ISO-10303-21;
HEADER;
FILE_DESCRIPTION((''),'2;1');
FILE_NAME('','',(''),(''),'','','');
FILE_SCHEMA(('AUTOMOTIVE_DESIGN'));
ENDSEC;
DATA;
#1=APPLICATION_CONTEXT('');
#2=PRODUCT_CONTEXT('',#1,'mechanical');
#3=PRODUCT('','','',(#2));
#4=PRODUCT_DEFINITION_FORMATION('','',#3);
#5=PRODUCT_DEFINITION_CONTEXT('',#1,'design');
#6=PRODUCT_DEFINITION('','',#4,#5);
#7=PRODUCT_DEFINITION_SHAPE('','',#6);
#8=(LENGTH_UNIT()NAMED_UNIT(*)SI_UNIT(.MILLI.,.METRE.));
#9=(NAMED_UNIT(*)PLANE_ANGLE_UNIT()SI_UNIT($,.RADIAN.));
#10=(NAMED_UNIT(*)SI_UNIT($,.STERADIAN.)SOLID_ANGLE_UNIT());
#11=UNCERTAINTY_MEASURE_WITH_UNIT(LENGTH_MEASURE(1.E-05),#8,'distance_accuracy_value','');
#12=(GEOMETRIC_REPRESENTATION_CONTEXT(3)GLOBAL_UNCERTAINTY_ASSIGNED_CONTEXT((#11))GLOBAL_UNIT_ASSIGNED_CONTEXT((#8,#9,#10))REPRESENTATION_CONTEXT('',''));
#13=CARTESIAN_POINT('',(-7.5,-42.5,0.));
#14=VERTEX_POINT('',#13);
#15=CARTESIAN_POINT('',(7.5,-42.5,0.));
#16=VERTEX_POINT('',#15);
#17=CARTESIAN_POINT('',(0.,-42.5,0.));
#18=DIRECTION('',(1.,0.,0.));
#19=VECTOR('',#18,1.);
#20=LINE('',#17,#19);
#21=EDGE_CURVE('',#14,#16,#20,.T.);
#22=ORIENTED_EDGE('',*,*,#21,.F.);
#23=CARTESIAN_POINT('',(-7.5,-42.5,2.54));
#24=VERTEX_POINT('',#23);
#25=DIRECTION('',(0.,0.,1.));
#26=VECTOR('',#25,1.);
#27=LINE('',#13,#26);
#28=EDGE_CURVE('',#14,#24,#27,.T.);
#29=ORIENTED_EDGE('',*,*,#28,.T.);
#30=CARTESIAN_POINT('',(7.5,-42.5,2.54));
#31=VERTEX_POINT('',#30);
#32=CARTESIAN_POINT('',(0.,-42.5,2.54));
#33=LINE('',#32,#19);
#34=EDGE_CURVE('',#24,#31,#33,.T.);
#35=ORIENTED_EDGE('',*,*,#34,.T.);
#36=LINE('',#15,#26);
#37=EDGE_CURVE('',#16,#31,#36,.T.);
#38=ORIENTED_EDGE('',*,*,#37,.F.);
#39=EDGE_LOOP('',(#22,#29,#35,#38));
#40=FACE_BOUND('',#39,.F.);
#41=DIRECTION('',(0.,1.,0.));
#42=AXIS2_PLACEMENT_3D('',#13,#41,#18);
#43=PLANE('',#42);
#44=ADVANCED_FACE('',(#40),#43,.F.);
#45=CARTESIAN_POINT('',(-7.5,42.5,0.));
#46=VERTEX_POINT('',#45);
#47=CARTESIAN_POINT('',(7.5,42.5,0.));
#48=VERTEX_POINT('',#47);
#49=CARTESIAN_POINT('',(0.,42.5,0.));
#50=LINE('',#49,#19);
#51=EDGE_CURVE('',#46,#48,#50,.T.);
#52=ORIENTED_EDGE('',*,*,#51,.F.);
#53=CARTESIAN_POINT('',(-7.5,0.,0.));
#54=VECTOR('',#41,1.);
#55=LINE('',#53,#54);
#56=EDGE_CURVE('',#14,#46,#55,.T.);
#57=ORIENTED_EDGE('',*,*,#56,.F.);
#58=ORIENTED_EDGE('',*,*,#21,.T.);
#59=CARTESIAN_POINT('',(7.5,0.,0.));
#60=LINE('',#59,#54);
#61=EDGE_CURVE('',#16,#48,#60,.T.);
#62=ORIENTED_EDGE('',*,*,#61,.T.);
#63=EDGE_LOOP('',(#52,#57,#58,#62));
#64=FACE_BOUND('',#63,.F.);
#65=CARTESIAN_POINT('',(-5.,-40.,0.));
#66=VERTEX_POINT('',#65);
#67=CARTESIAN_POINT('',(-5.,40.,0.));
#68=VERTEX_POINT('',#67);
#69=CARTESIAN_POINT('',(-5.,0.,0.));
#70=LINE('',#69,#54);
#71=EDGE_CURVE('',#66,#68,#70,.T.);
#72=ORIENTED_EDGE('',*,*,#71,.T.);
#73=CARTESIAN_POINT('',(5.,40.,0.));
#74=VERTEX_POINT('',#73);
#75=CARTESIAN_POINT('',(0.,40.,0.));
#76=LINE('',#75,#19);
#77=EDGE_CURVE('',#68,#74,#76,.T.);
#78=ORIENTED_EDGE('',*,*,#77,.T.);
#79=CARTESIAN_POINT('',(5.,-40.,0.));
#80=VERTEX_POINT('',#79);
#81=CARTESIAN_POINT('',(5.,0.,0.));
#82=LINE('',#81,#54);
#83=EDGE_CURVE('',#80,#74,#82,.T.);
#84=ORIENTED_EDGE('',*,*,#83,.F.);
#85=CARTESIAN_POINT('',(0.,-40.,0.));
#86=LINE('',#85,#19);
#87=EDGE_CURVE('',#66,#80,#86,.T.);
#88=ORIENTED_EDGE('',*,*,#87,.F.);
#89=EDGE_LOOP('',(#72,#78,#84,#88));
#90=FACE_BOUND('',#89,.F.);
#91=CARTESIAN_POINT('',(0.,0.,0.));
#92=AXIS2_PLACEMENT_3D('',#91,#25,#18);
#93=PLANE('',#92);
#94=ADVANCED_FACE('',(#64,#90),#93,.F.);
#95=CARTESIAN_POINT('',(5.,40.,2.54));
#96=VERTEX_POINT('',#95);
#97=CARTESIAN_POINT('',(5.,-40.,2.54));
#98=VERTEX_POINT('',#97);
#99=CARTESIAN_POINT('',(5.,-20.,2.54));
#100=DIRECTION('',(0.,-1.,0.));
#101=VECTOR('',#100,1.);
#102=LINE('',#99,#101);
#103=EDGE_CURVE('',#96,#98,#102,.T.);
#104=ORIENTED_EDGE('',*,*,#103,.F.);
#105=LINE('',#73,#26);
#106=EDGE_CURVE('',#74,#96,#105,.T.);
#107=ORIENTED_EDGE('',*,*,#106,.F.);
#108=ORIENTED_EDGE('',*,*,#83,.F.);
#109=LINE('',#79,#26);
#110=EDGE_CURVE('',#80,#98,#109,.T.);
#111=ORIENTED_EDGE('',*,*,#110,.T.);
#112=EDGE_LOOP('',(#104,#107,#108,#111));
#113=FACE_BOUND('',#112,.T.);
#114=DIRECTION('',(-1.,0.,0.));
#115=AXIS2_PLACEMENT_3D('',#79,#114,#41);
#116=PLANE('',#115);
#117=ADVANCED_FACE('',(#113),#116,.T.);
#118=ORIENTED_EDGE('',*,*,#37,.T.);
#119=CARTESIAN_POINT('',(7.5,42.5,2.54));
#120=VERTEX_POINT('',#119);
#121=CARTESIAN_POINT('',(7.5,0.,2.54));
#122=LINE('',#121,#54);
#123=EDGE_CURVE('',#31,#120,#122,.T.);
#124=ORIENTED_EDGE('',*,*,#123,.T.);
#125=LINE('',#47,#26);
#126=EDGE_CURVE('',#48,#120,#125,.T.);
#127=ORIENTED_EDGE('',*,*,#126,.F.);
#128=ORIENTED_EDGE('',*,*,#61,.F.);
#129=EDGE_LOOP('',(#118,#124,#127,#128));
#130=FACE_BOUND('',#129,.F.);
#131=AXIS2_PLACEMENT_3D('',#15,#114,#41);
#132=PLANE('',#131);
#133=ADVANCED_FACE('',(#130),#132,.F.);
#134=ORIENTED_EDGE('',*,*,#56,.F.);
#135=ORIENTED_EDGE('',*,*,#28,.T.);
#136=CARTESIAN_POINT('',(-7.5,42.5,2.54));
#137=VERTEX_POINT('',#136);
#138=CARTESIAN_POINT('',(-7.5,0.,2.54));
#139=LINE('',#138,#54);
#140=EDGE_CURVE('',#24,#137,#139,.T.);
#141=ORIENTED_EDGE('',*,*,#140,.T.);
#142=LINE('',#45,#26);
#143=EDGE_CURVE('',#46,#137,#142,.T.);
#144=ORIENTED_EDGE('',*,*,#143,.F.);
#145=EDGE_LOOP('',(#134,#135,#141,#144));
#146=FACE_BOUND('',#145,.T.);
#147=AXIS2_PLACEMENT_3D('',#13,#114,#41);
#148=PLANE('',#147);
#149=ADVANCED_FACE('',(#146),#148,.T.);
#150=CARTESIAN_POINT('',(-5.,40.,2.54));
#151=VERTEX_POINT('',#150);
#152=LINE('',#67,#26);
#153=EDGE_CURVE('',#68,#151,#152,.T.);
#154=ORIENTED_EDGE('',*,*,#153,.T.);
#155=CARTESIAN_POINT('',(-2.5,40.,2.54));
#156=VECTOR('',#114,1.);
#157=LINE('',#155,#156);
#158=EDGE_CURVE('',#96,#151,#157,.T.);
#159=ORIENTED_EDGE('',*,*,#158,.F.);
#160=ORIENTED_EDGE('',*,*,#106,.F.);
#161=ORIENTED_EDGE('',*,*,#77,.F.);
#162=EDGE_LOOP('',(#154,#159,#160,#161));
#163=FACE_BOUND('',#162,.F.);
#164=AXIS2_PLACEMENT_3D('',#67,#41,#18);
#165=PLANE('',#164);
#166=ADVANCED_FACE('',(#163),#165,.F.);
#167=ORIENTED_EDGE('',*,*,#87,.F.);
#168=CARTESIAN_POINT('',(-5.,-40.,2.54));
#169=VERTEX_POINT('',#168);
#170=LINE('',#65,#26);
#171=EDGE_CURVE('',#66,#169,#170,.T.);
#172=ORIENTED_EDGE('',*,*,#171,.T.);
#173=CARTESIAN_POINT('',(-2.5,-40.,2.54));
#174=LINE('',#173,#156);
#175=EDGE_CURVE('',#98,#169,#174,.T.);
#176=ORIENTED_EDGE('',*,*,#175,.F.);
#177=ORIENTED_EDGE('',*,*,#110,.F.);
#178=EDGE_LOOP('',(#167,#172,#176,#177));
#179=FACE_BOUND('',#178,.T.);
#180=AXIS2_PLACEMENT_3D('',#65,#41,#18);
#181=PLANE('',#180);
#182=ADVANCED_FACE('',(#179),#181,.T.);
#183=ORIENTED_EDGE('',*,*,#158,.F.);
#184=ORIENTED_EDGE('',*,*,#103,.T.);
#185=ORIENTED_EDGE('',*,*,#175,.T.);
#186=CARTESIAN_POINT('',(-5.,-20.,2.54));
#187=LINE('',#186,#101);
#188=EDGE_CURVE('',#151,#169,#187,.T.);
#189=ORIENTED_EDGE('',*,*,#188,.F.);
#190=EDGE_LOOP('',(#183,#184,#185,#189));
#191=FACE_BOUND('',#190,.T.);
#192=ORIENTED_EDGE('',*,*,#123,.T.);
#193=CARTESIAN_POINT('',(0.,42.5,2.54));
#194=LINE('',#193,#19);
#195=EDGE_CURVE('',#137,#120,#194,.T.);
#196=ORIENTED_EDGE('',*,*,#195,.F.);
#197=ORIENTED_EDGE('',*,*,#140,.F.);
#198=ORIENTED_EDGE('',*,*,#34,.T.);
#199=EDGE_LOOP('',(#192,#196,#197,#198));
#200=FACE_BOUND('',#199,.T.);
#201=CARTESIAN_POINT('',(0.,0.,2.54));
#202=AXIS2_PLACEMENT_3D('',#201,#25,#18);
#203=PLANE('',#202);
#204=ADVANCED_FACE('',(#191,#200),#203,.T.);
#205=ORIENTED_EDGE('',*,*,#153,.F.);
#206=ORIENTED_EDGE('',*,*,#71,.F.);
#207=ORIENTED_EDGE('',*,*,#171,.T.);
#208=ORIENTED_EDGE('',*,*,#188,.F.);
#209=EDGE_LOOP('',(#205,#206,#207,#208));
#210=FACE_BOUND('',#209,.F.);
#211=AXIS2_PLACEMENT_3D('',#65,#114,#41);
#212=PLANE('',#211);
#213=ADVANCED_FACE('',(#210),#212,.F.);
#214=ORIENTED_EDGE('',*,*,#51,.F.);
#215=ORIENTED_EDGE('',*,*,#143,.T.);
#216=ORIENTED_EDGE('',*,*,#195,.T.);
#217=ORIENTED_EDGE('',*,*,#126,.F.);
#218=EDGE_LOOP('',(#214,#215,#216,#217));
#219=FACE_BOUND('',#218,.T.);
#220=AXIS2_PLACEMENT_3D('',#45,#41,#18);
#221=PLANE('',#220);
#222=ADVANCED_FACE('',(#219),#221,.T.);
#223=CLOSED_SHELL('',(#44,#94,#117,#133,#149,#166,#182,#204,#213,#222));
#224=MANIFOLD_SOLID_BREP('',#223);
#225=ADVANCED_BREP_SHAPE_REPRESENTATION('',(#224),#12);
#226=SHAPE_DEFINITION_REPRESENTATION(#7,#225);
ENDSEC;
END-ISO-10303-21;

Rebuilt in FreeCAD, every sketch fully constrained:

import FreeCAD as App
import Part
import Sketcher


def add_polygon(sketch, points):
    """Adds a closed chain of lines whose ends are joined by coincident constraints."""
    first, n = sketch.GeometryCount, len(points)
    for a, b in zip(points, points[1:] + points[:1]):
        sketch.addGeometry(Part.LineSegment(App.Vector(*a, 0), App.Vector(*b, 0)), False)
    for i in range(n):
        sketch.addConstraint(Sketcher.Constraint("Coincident", first + i, 2, first + (i + 1) % n, 1))

doc = App.newDocument("Part")
body = doc.addObject("PartDesign::Body", "Body")

# Sketch on XY plane
sketch1 = body.newObject("Sketcher::SketchObject", "Sketch")
sketch1.AttachmentSupport = (doc.getObject("XY_Plane"), [""])
sketch1.MapMode = "FlatFace"
add_polygon(sketch1, [(-7.5, 42.5), (-7.5, -42.5), (7.5, -42.5), (7.5, 42.5)])  # lines 0-3
sketch1.addConstraint(Sketcher.Constraint("Vertical", 0))
sketch1.addConstraint(Sketcher.Constraint("Horizontal", 1))
sketch1.addConstraint(Sketcher.Constraint("Vertical", 2))
sketch1.addConstraint(Sketcher.Constraint("Horizontal", 3))
sketch1.addConstraint(Sketcher.Constraint("Symmetric", 0, 2, 2, 2, -1, 1))
sketch1.addConstraint(Sketcher.Constraint("DistanceX", 1, 1, 1, 2, 15.0))
sketch1.addConstraint(Sketcher.Constraint("DistanceY", 0, 2, 0, 1, 85.0))
pad1 = body.newObject("PartDesign::Pad", "Pad")
pad1.Profile = sketch1
pad1.Length = 2.54

# Sketch on XY plane
sketch2 = body.newObject("Sketcher::SketchObject", "Sketch001")
sketch2.AttachmentSupport = (doc.getObject("XY_Plane"), [""])
sketch2.MapMode = "FlatFace"
add_polygon(sketch2, [(-5, 40), (-5, -40), (5, -40), (5, 40)])  # lines 0-3
sketch2.addConstraint(Sketcher.Constraint("Vertical", 0))
sketch2.addConstraint(Sketcher.Constraint("Horizontal", 1))
sketch2.addConstraint(Sketcher.Constraint("Vertical", 2))
sketch2.addConstraint(Sketcher.Constraint("Horizontal", 3))
sketch2.addConstraint(Sketcher.Constraint("Symmetric", 0, 2, 2, 2, -1, 1))
sketch2.addConstraint(Sketcher.Constraint("DistanceX", 1, 1, 1, 2, 10.0))
sketch2.addConstraint(Sketcher.Constraint("DistanceY", 0, 2, 0, 1, 80.0))
pocket1 = body.newObject("PartDesign::Pocket", "Pocket")
pocket1.Profile = sketch2
pocket1.Type = "ThroughAll"
pocket1.Reversed = True

doc.recompute()
